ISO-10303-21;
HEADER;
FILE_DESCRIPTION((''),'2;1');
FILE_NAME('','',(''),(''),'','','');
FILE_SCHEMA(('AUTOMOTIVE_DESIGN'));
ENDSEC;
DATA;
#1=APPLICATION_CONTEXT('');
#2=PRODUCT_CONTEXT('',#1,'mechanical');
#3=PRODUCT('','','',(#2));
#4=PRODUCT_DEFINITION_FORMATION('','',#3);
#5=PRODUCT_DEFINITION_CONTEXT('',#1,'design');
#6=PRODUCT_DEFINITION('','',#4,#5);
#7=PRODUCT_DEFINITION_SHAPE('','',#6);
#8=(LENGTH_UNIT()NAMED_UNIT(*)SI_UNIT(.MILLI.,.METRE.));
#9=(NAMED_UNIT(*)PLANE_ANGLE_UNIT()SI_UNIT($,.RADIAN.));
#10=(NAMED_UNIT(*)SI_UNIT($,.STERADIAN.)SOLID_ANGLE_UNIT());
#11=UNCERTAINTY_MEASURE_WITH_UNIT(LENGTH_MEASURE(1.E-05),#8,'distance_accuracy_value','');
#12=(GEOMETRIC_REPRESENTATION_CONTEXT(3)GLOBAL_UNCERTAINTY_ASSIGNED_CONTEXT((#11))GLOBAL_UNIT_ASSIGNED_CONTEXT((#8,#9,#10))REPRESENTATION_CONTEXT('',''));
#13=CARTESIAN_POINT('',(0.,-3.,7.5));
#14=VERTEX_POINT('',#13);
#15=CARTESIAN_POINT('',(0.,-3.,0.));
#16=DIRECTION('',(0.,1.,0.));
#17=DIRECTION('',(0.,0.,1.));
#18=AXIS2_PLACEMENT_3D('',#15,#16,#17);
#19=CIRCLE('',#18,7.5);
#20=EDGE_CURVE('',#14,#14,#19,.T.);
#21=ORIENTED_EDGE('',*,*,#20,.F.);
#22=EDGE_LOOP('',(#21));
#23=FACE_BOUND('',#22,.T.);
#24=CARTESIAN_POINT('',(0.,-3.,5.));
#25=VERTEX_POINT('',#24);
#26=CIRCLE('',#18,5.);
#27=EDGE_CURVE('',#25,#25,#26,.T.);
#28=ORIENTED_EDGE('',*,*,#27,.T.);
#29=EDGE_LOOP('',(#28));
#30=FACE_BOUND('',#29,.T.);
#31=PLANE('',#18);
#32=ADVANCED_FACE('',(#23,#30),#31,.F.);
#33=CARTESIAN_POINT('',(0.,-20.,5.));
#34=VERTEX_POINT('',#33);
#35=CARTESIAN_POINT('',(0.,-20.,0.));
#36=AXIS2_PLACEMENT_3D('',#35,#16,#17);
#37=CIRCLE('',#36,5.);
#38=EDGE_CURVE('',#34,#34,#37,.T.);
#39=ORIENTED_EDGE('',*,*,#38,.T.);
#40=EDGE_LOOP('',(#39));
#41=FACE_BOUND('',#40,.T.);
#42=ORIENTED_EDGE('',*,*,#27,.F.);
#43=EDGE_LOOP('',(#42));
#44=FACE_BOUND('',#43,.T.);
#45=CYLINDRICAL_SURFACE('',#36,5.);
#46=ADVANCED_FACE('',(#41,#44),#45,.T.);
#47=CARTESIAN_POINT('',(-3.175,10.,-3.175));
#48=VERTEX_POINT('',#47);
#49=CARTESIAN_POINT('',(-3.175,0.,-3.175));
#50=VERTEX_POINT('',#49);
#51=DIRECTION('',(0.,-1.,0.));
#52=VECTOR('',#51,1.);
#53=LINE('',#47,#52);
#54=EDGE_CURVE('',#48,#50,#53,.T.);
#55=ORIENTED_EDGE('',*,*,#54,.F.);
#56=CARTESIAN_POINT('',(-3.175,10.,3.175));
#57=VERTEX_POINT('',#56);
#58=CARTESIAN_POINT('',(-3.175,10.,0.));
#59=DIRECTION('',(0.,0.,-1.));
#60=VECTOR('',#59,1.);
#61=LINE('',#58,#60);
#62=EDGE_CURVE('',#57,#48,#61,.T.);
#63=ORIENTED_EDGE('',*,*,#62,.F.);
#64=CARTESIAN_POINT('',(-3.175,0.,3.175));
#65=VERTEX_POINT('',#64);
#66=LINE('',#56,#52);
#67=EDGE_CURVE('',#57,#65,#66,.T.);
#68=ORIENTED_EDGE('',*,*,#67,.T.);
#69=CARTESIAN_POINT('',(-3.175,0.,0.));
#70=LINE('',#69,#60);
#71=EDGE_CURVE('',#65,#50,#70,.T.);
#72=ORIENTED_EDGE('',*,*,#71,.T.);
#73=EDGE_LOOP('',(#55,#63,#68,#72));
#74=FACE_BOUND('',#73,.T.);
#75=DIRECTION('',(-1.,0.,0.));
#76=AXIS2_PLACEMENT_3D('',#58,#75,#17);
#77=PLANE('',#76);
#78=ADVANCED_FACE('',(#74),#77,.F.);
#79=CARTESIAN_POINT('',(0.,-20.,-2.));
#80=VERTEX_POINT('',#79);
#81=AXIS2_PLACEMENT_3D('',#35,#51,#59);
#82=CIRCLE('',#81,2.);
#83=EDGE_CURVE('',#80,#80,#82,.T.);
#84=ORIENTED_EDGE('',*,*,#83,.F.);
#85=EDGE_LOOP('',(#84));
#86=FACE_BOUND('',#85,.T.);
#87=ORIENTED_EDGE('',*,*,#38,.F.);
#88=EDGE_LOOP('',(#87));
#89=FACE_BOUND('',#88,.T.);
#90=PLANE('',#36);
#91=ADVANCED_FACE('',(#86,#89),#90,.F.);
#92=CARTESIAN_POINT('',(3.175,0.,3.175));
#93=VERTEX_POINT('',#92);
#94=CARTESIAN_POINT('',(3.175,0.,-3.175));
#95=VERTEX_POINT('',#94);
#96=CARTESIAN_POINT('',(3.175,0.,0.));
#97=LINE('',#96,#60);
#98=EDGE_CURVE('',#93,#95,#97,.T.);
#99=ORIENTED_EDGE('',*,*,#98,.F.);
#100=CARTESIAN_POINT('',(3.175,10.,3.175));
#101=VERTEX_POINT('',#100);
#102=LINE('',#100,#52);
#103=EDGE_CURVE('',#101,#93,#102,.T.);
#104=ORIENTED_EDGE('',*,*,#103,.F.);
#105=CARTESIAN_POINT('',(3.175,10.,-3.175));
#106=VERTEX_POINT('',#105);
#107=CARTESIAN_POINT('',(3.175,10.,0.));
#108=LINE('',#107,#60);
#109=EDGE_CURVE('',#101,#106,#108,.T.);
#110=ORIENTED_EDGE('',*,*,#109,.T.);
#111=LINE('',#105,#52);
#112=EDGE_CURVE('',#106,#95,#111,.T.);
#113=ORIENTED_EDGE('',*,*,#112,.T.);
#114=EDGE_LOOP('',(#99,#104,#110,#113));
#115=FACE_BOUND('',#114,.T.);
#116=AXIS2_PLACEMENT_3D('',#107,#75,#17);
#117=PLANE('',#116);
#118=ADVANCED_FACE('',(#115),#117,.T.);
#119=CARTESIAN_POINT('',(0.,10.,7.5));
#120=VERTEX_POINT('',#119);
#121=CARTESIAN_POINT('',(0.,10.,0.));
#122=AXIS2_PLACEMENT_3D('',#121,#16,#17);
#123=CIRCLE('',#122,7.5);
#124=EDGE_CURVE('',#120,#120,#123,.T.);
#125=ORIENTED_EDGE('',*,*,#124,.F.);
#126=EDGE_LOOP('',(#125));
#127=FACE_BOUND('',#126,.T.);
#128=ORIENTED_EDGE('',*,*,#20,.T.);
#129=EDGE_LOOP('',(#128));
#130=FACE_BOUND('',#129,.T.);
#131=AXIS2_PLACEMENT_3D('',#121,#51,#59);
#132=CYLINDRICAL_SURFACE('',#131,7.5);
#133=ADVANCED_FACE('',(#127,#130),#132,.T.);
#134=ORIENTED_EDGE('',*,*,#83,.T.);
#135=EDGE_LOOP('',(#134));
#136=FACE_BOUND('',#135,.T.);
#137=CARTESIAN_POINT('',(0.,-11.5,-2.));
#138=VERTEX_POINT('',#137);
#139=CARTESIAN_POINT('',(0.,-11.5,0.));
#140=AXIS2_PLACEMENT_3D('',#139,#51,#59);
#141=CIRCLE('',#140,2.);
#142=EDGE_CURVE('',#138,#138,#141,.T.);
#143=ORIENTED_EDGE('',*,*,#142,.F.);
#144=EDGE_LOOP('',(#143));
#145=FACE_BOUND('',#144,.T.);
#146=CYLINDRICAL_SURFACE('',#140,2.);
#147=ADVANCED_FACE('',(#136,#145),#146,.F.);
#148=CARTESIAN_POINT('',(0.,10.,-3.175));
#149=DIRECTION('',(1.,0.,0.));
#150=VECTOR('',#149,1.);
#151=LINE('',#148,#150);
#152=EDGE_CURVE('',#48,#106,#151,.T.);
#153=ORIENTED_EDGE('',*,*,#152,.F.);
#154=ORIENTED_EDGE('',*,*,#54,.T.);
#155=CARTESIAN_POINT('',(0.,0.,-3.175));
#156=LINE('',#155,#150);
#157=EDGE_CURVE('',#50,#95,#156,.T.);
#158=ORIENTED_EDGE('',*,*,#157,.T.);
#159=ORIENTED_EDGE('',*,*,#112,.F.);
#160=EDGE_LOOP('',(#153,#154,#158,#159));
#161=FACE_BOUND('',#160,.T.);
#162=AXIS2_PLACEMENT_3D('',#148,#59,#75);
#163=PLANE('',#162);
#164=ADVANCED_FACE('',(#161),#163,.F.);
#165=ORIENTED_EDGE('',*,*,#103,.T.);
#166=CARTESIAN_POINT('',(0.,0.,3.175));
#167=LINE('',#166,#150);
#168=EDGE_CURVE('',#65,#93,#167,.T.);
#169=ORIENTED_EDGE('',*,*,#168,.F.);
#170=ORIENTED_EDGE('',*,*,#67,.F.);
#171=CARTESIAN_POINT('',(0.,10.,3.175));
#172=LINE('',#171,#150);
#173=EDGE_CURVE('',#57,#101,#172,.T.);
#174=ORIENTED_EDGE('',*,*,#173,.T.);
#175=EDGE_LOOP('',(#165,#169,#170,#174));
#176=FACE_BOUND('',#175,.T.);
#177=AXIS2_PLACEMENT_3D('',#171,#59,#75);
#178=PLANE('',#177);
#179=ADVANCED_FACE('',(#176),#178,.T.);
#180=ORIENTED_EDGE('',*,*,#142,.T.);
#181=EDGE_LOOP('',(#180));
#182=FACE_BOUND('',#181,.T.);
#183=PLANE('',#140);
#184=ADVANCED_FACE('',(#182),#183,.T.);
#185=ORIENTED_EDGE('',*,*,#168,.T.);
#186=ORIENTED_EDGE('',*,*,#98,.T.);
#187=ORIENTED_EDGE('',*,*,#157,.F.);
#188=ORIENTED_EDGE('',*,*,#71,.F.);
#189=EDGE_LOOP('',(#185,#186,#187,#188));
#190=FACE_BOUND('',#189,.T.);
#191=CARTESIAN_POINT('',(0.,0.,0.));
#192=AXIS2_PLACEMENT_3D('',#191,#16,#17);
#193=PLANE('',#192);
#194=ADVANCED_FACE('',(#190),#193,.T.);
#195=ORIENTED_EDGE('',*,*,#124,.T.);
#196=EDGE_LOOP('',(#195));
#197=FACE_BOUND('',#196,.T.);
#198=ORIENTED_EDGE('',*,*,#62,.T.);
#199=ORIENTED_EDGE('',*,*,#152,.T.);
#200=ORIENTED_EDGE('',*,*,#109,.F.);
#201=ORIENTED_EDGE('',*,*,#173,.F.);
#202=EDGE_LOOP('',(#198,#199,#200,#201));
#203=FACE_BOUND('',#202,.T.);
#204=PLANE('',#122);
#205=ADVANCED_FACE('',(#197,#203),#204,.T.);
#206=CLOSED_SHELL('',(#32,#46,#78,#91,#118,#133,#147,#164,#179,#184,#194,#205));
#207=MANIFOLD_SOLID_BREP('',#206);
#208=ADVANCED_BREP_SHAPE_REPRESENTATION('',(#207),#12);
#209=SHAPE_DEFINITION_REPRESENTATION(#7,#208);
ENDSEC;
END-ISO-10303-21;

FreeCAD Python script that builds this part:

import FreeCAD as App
import Part
import Sketcher
from FreeCAD import Vector

doc = App.newDocument("Part")
body = doc.addObject("PartDesign::Body", "Body")

# Sketch on XZ plane
sketch1 = body.newObject("Sketcher::SketchObject", "Sketch")
sketch1.AttachmentSupport = (doc.getObject("XZ_Plane"), [""])
sketch1.MapMode = "FlatFace"
sketch1.addGeometry([
    Part.Circle(Vector(0, 0, 0), Vector(0, 0, 1), 7.5),  # 0
    Part.LineSegment(Vector(3.175, 3.175, 0), Vector(-3.175, 3.175, 0)),  # 1
    Part.LineSegment(Vector(-3.175, 3.175, 0), Vector(-3.175, -3.175, 0)),  # 2
    Part.LineSegment(Vector(-3.175, -3.175, 0), Vector(3.175, -3.175, 0)),  # 3
    Part.LineSegment(Vector(3.175, -3.175, 0), Vector(3.175, 3.175, 0)),  # 4
], False)
sketch1.addConstraint([
    Sketcher.Constraint("Coincident", 1, 2, 2, 1),
    Sketcher.Constraint("Coincident", 2, 2, 3, 1),
    Sketcher.Constraint("Coincident", 3, 2, 4, 1),
    Sketcher.Constraint("Coincident", 4, 2, 1, 1),
    Sketcher.Constraint("Horizontal", 1),
    Sketcher.Constraint("Vertical", 2),
    Sketcher.Constraint("Horizontal", 3),
    Sketcher.Constraint("Vertical", 4),
    Sketcher.Constraint("Coincident", 0, 3, -1, 1),
    Sketcher.Constraint("Symmetric", 1, 2, 3, 2, -1, 1),
    Sketcher.Constraint("Equal", 3, 2),
    Sketcher.Constraint("Diameter", 0, 15.0),
    Sketcher.Constraint("DistanceX", 1, 2, 1, 1, 6.35),
])
pad1 = body.newObject("PartDesign::Pad", "Pad")
pad1.Profile = sketch1
pad1.Length = 10
pad1.Reversed = True

# Sketch on XZ plane
sketch2 = body.newObject("Sketcher::SketchObject", "Sketch001")
sketch2.AttachmentSupport = (doc.getObject("XZ_Plane"), [""])
sketch2.MapMode = "FlatFace"
sketch2.addGeometry(Part.Circle(Vector(0, 0, 0), Vector(0, 0, 1), 5), False)
sketch2.addConstraint([
    Sketcher.Constraint("Coincident", 0, 3, -1, 1),
    Sketcher.Constraint("Diameter", 0, 10.0),
])
pad2 = body.newObject("PartDesign::Pad", "Pad001")
pad2.Profile = sketch2
pad2.Length = 20

# Sketch on XZ plane
sketch3 = body.newObject("Sketcher::SketchObject", "Sketch002")
sketch3.AttachmentSupport = (doc.getObject("XZ_Plane"), [""])
sketch3.MapMode = "FlatFace"
sketch3.addGeometry([
    Part.Circle(Vector(0, 0, 0), Vector(0, 0, 1), 7.5),
    Part.Circle(Vector(0, 0, 0), Vector(0, 0, 1), 5),
], False)
sketch3.addConstraint([
    Sketcher.Constraint("Coincident", 0, 3, -1, 1),
    Sketcher.Constraint("Coincident", 1, 3, -1, 1),
    Sketcher.Constraint("Diameter", 0, 15.0),
    Sketcher.Constraint("Diameter", 1, 10.0),
])
pad3 = body.newObject("PartDesign::Pad", "Pad002")
pad3.Profile = sketch3
pad3.Length = 3

# Sketch on XZ plane
sketch4 = body.newObject("Sketcher::SketchObject", "Sketch003")
sketch4.AttachmentSupport = (doc.getObject("XZ_Plane"), [""])
sketch4.MapMode = "FlatFace"
sketch4.AttachmentOffset = App.Placement(Vector(0, 0, 20), App.Rotation())
sketch4.addGeometry(Part.Circle(Vector(0, 0, 0), Vector(0, 0, 1), 2), False)
sketch4.addConstraint([
    Sketcher.Constraint("Coincident", 0, 3, -1, 1),
    Sketcher.Constraint("Diameter", 0, 4.0),
])
pocket1 = body.newObject("PartDesign::Pocket", "Pocket")
pocket1.Profile = sketch4
pocket1.Length = 8.5

doc.recompute()
